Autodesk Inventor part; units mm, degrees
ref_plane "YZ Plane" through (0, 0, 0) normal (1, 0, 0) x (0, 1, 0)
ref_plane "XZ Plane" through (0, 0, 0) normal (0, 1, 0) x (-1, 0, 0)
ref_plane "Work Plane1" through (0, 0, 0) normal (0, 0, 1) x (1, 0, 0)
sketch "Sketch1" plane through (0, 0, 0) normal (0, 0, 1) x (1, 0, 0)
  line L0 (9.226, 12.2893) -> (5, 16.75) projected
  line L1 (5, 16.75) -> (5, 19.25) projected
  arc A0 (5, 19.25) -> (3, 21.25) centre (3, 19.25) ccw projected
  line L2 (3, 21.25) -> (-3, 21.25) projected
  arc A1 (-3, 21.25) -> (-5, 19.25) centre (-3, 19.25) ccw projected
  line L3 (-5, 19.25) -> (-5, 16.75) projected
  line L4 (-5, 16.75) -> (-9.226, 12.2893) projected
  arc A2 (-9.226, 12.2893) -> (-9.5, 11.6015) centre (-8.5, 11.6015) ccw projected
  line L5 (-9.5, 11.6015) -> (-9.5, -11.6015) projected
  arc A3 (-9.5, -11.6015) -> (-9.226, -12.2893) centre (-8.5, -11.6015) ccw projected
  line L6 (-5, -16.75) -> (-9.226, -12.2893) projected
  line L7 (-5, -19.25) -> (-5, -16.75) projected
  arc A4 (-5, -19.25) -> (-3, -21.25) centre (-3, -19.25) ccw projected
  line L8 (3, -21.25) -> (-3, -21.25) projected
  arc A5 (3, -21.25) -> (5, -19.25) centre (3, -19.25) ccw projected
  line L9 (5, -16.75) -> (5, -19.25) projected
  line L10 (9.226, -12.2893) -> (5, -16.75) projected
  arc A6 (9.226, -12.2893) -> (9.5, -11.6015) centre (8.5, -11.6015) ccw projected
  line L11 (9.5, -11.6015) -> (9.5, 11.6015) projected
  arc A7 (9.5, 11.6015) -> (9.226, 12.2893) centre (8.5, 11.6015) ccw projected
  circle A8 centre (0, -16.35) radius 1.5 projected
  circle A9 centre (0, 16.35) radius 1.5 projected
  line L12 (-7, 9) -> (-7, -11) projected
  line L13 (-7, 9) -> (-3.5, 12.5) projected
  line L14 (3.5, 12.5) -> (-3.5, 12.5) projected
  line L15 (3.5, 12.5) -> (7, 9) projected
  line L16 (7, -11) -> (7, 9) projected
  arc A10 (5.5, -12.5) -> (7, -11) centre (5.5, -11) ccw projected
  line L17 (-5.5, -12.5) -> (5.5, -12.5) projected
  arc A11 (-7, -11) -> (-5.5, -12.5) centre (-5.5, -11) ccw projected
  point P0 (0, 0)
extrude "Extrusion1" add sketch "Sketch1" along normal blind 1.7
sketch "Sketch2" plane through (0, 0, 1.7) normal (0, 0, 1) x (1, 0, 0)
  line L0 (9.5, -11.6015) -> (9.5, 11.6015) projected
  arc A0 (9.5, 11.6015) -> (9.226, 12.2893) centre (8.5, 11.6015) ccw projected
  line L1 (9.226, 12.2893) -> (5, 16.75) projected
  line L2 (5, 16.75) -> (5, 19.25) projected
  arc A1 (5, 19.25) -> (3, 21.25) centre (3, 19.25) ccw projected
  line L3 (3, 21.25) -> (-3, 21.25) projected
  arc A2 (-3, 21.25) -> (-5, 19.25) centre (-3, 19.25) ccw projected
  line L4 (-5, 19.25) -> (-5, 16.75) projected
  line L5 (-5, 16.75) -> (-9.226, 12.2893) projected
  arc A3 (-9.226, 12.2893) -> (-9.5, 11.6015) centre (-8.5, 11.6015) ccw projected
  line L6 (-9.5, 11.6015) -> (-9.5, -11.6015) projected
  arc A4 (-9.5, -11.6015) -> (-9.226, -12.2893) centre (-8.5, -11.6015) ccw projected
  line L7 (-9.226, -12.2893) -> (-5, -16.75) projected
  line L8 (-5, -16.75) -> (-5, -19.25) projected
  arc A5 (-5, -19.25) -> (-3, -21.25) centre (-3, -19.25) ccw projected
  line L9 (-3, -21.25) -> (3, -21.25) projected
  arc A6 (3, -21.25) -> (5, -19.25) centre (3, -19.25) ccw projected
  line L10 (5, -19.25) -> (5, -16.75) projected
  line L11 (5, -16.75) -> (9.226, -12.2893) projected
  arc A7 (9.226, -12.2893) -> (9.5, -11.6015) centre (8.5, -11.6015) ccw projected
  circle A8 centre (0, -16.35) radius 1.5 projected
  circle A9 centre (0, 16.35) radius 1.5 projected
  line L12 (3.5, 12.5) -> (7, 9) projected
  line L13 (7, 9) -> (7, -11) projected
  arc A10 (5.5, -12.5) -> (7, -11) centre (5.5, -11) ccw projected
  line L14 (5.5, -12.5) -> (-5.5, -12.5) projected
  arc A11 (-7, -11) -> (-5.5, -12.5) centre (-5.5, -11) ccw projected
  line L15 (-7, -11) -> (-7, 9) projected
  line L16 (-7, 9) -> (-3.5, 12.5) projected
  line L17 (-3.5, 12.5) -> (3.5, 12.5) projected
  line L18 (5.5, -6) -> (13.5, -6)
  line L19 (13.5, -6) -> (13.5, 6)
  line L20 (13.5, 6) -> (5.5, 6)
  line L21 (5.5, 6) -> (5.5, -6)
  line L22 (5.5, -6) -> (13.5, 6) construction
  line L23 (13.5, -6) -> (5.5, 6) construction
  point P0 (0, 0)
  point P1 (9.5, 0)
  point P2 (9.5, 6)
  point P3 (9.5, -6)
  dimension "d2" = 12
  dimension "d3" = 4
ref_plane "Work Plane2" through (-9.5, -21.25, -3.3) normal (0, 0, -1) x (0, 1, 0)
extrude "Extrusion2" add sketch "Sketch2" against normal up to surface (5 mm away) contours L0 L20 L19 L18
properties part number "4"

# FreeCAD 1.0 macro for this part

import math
import FreeCAD as App
import Part
import Sketcher

doc = App.newDocument("Part")
body = doc.addObject("PartDesign::Body", "Body")

sketch1 = body.newObject("Sketcher::SketchObject", "Sketch")
sketch1.AttachmentSupport = (doc.getObject("XY_Plane"), [""])
sketch1.MapMode = "FlatFace"
sketch1.addGeometry(Part.ArcOfCircle(Part.Circle(App.Vector(8.5, 11.6015, 0), App.Vector(0, 0, 1), 1), math.radians(0), math.radians(43.45228)), False)
sketch1.addGeometry(Part.LineSegment(App.Vector(9.226, 12.2893, 0), App.Vector(5, 16.75, 0)), False)
sketch1.addGeometry(Part.LineSegment(App.Vector(5, 16.75, 0), App.Vector(5, 19.25, 0)), False)
sketch1.addGeometry(Part.ArcOfCircle(Part.Circle(App.Vector(3, 19.25, 0), App.Vector(0, 0, 1), 2), math.radians(0), math.radians(90)), False)
sketch1.addGeometry(Part.LineSegment(App.Vector(3, 21.25, 0), App.Vector(-3, 21.25, 0)), False)
sketch1.addGeometry(Part.ArcOfCircle(Part.Circle(App.Vector(-3, 19.25, 0), App.Vector(0, 0, 1), 2), math.radians(90), math.radians(180)), False)
sketch1.addGeometry(Part.LineSegment(App.Vector(-5, 19.25, 0), App.Vector(-5, 16.75, 0)), False)
sketch1.addGeometry(Part.LineSegment(App.Vector(-5, 16.75, 0), App.Vector(-9.226, 12.2893, 0)), False)
sketch1.addGeometry(Part.ArcOfCircle(Part.Circle(App.Vector(-8.5, 11.6015, 0), App.Vector(0, 0, 1), 1.000072), math.radians(136.54772), math.radians(180)), False)
sketch1.addGeometry(Part.LineSegment(App.Vector(-9.5, 11.6015, 0), App.Vector(-9.5, -11.6015, 0)), False)
sketch1.addGeometry(Part.ArcOfCircle(Part.Circle(App.Vector(-8.5, -11.6015, 0), App.Vector(0, 0, 1), 1), math.radians(180), math.radians(223.45228)), False)
sketch1.addGeometry(Part.LineSegment(App.Vector(-9.226, -12.2893, 0), App.Vector(-5, -16.75, 0)), False)
sketch1.addGeometry(Part.LineSegment(App.Vector(-5, -16.75, 0), App.Vector(-5, -19.25, 0)), False)
sketch1.addGeometry(Part.ArcOfCircle(Part.Circle(App.Vector(-3, -19.25, 0), App.Vector(0, 0, 1), 2), math.radians(180), math.radians(270)), False)
sketch1.addGeometry(Part.LineSegment(App.Vector(-3, -21.25, 0), App.Vector(3, -21.25, 0)), False)
sketch1.addGeometry(Part.ArcOfCircle(Part.Circle(App.Vector(3, -19.25, 0), App.Vector(0, 0, 1), 2), math.radians(-90), math.radians(0)), False)
sketch1.addGeometry(Part.LineSegment(App.Vector(5, -19.25, 0), App.Vector(5, -16.75, 0)), False)
sketch1.addGeometry(Part.LineSegment(App.Vector(5, -16.75, 0), App.Vector(9.226, -12.2893, 0)), False)
sketch1.addGeometry(Part.ArcOfCircle(Part.Circle(App.Vector(8.5, -11.6015, 0), App.Vector(0, 0, 1), 1.000072), math.radians(-43.45228), math.radians(0)), False)
sketch1.addGeometry(Part.LineSegment(App.Vector(9.5, -11.6015, 0), App.Vector(9.5, 11.6015, 0)), False)
sketch1.addGeometry(Part.Circle(App.Vector(0, -16.35, 0), App.Vector(0, 0, 1), 1.5), False)
sketch1.addGeometry(Part.LineSegment(App.Vector(-7, -11, 0), App.Vector(-7, 9, 0)), False)
sketch1.addGeometry(Part.LineSegment(App.Vector(-7, 9, 0), App.Vector(-3.5, 12.5, 0)), False)
sketch1.addGeometry(Part.LineSegment(App.Vector(-3.5, 12.5, 0), App.Vector(3.5, 12.5, 0)), False)
sketch1.addGeometry(Part.LineSegment(App.Vector(3.5, 12.5, 0), App.Vector(7, 9, 0)), False)
sketch1.addGeometry(Part.LineSegment(App.Vector(7, 9, 0), App.Vector(7, -11, 0)), False)
sketch1.addGeometry(Part.ArcOfCircle(Part.Circle(App.Vector(5.5, -11, 0), App.Vector(0, 0, 1), 1.5), math.radians(-90), math.radians(0)), False)
sketch1.addGeometry(Part.LineSegment(App.Vector(5.5, -12.5, 0), App.Vector(-5.5, -12.5, 0)), False)
sketch1.addGeometry(Part.ArcOfCircle(Part.Circle(App.Vector(-5.5, -11, 0), App.Vector(0, 0, 1), 1.5), math.radians(180), math.radians(270)), False)
sketch1.addGeometry(Part.Circle(App.Vector(0, 16.35, 0), App.Vector(0, 0, 1), 1.5), False)
sketch1.addConstraint(Sketcher.Constraint("Tangent", 0, 2, 1, 1))
sketch1.addConstraint(Sketcher.Constraint("Coincident", 1, 2, 2, 1))
sketch1.addConstraint(Sketcher.Constraint("Tangent", 2, 2, 3, 1))
sketch1.addConstraint(Sketcher.Constraint("Tangent", 3, 2, 4, 1))
sketch1.addConstraint(Sketcher.Constraint("Tangent", 4, 2, 5, 1))
sketch1.addConstraint(Sketcher.Constraint("Tangent", 5, 2, 6, 1))
sketch1.addConstraint(Sketcher.Constraint("Coincident", 6, 2, 7, 1))
sketch1.addConstraint(Sketcher.Constraint("Tangent", 7, 2, 8, 1))
sketch1.addConstraint(Sketcher.Constraint("Tangent", 8, 2, 9, 1))
sketch1.addConstraint(Sketcher.Constraint("Tangent", 9, 2, 10, 1))
sketch1.addConstraint(Sketcher.Constraint("Tangent", 10, 2, 11, 1))
sketch1.addConstraint(Sketcher.Constraint("Coincident", 11, 2, 12, 1))
sketch1.addConstraint(Sketcher.Constraint("Tangent", 12, 2, 13, 1))
sketch1.addConstraint(Sketcher.Constraint("Tangent", 13, 2, 14, 1))
sketch1.addConstraint(Sketcher.Constraint("Tangent", 14, 2, 15, 1))
sketch1.addConstraint(Sketcher.Constraint("Tangent", 15, 2, 16, 1))
sketch1.addConstraint(Sketcher.Constraint("Coincident", 16, 2, 17, 1))
sketch1.addConstraint(Sketcher.Constraint("Tangent", 17, 2, 18, 1))
sketch1.addConstraint(Sketcher.Constraint("Tangent", 18, 2, 19, 1))
sketch1.addConstraint(Sketcher.Constraint("Tangent", 19, 2, 0, 1))
sketch1.addConstraint(Sketcher.Constraint("Coincident", 21, 2, 22, 1))
sketch1.addConstraint(Sketcher.Constraint("Coincident", 22, 2, 23, 1))
sketch1.addConstraint(Sketcher.Constraint("Coincident", 23, 2, 24, 1))
sketch1.addConstraint(Sketcher.Constraint("Coincident", 24, 2, 25, 1))
sketch1.addConstraint(Sketcher.Constraint("Tangent", 25, 2, 26, 2))
sketch1.addConstraint(Sketcher.Constraint("Tangent", 26, 1, 27, 1))
sketch1.addConstraint(Sketcher.Constraint("Tangent", 27, 2, 28, 2))
sketch1.addConstraint(Sketcher.Constraint("Tangent", 28, 1, 21, 1))
sketch1.addConstraint(Sketcher.Constraint("Vertical", 2))
sketch1.addConstraint(Sketcher.Constraint("Horizontal", 4))
sketch1.addConstraint(Sketcher.Constraint("Vertical", 6))
sketch1.addConstraint(Sketcher.Constraint("Vertical", 9))
sketch1.addConstraint(Sketcher.Constraint("Vertical", 12))
sketch1.addConstraint(Sketcher.Constraint("Horizontal", 14))
sketch1.addConstraint(Sketcher.Constraint("Vertical", 16))
sketch1.addConstraint(Sketcher.Constraint("Vertical", 19))
sketch1.addConstraint(Sketcher.Constraint("Vertical", 21))
sketch1.addConstraint(Sketcher.Constraint("Horizontal", 23))
sketch1.addConstraint(Sketcher.Constraint("Vertical", 25))
sketch1.addConstraint(Sketcher.Constraint("Horizontal", 27))
sketch1.addConstraint(Sketcher.Constraint("Equal", 3, 5))
sketch1.addConstraint(Sketcher.Constraint("Equal", 0, 8))
sketch1.addConstraint(Sketcher.Constraint("Equal", 8, 10))
sketch1.addConstraint(Sketcher.Constraint("Equal", 5, 13))
sketch1.addConstraint(Sketcher.Constraint("Equal", 13, 15))
sketch1.addConstraint(Sketcher.Constraint("Equal", 10, 18))
sketch1.addConstraint(Sketcher.Constraint("Equal", 20, 26))
sketch1.addConstraint(Sketcher.Constraint("Equal", 26, 28))
sketch1.addConstraint(Sketcher.Constraint("Equal", 28, 29))
sketch1.addConstraint(Sketcher.Constraint("Symmetric", 0, 3, 10, 3, -1, 1))
sketch1.addConstraint(Sketcher.Constraint("Symmetric", 3, 3, 13, 3, -1, 1))
sketch1.addConstraint(Sketcher.Constraint("Symmetric", 20, 3, 29, 3, -1, 1))
sketch1.addConstraint(Sketcher.Constraint("Symmetric", 6, 2, 16, 2, -1, 1))
sketch1.addConstraint(Sketcher.Constraint("Symmetric", 1, 2, 6, 2, -2))
sketch1.addConstraint(Sketcher.Constraint("Symmetric", 10, 2, 17, 2, -2))
sketch1.addConstraint(Sketcher.Constraint("Symmetric", 21, 2, 24, 2, -2))
sketch1.addConstraint(Sketcher.Constraint("PointOnObject", 20, 3, -2))
sketch1.addConstraint(Sketcher.Constraint("Parallel", 7, 17))
sketch1.addConstraint(Sketcher.Constraint("Perpendicular", 22, 24))
sketch1.addConstraint(Sketcher.Constraint("Equal", 22, 24))
sketch1.addConstraint(Sketcher.Constraint("Diameter", 20, 3.0))
sketch1.addConstraint(Sketcher.Constraint("Radius", 0, 1.0))
sketch1.addConstraint(Sketcher.Constraint("Radius", 3, 2.0))
sketch1.addConstraint(Sketcher.Constraint("DistanceX", 4, 2, 4, 1, 6.0))
sketch1.addConstraint(Sketcher.Constraint("DistanceX", 23, 1, 23, 2, 7.0))
sketch1.addConstraint(Sketcher.Constraint("DistanceX", 27, 2, 27, 1, 11.0))
sketch1.addConstraint(Sketcher.Constraint("DistanceY", 21, 1, 21, 2, 20.0))
sketch1.addConstraint(Sketcher.Constraint("DistanceY", 2, 1, 2, 2, 2.5))
sketch1.addConstraint(Sketcher.Constraint("DistanceY", 26, 3, -1, 1, 11.0))
sketch1.addConstraint(Sketcher.Constraint("DistanceX", 8, 3, 0, 3, 17.0))
sketch1.addConstraint(Sketcher.Constraint("DistanceY", 13, 3, 5, 3, 38.5))
sketch1.addConstraint(Sketcher.Constraint("DistanceY", 13, 3, 20, 3, 2.9))
sketch1.addConstraint(Sketcher.Constraint("DistanceY", 9, 2, 9, 1, 23.203))
pad1 = body.newObject("PartDesign::Pad", "Pad")
pad1.Profile = sketch1
pad1.Length = 1.7

sketch2 = body.newObject("Sketcher::SketchObject", "Sketch001")
sketch2.AttachmentSupport = (doc.getObject("XY_Plane"), [""])
sketch2.MapMode = "FlatFace"
sketch2.AttachmentOffset = App.Placement(App.Vector(0, 0, 1.7), App.Rotation())
sketch2.addGeometry(Part.LineSegment(App.Vector(9.5, 6, 0), App.Vector(9.5, -6, 0)), False)
sketch2.addGeometry(Part.LineSegment(App.Vector(9.5, -6, 0), App.Vector(13.5, -6, 0)), False)
sketch2.addGeometry(Part.LineSegment(App.Vector(13.5, -6, 0), App.Vector(13.5, 6, 0)), False)
sketch2.addGeometry(Part.LineSegment(App.Vector(13.5, 6, 0), App.Vector(9.5, 6, 0)), False)
sketch2.addConstraint(Sketcher.Constraint("Coincident", 0, 2, 1, 1))
sketch2.addConstraint(Sketcher.Constraint("Coincident", 1, 2, 2, 1))
sketch2.addConstraint(Sketcher.Constraint("Coincident", 2, 2, 3, 1))
sketch2.addConstraint(Sketcher.Constraint("Coincident", 3, 2, 0, 1))
sketch2.addConstraint(Sketcher.Constraint("Vertical", 0))
sketch2.addConstraint(Sketcher.Constraint("Horizontal", 1))
sketch2.addConstraint(Sketcher.Constraint("Vertical", 2))
sketch2.addConstraint(Sketcher.Constraint("Horizontal", 3))
sketch2.addConstraint(Sketcher.Constraint("DistanceX", 1, 1, 1, 2, 4.0))
sketch2.addConstraint(Sketcher.Constraint("DistanceY", 0, 2, 0, 1, 12.0))
sketch2.addConstraint(Sketcher.Constraint("DistanceY", 0, 2, -1, 1, 6.0))
sketch2.addConstraint(Sketcher.Constraint("DistanceX", -1, 1, 0, 2, 9.5))
pad2 = body.newObject("PartDesign::Pad", "Pad001")
pad2.Profile = sketch2
pad2.Length = 5
pad2.Reversed = True

doc.recompute()
